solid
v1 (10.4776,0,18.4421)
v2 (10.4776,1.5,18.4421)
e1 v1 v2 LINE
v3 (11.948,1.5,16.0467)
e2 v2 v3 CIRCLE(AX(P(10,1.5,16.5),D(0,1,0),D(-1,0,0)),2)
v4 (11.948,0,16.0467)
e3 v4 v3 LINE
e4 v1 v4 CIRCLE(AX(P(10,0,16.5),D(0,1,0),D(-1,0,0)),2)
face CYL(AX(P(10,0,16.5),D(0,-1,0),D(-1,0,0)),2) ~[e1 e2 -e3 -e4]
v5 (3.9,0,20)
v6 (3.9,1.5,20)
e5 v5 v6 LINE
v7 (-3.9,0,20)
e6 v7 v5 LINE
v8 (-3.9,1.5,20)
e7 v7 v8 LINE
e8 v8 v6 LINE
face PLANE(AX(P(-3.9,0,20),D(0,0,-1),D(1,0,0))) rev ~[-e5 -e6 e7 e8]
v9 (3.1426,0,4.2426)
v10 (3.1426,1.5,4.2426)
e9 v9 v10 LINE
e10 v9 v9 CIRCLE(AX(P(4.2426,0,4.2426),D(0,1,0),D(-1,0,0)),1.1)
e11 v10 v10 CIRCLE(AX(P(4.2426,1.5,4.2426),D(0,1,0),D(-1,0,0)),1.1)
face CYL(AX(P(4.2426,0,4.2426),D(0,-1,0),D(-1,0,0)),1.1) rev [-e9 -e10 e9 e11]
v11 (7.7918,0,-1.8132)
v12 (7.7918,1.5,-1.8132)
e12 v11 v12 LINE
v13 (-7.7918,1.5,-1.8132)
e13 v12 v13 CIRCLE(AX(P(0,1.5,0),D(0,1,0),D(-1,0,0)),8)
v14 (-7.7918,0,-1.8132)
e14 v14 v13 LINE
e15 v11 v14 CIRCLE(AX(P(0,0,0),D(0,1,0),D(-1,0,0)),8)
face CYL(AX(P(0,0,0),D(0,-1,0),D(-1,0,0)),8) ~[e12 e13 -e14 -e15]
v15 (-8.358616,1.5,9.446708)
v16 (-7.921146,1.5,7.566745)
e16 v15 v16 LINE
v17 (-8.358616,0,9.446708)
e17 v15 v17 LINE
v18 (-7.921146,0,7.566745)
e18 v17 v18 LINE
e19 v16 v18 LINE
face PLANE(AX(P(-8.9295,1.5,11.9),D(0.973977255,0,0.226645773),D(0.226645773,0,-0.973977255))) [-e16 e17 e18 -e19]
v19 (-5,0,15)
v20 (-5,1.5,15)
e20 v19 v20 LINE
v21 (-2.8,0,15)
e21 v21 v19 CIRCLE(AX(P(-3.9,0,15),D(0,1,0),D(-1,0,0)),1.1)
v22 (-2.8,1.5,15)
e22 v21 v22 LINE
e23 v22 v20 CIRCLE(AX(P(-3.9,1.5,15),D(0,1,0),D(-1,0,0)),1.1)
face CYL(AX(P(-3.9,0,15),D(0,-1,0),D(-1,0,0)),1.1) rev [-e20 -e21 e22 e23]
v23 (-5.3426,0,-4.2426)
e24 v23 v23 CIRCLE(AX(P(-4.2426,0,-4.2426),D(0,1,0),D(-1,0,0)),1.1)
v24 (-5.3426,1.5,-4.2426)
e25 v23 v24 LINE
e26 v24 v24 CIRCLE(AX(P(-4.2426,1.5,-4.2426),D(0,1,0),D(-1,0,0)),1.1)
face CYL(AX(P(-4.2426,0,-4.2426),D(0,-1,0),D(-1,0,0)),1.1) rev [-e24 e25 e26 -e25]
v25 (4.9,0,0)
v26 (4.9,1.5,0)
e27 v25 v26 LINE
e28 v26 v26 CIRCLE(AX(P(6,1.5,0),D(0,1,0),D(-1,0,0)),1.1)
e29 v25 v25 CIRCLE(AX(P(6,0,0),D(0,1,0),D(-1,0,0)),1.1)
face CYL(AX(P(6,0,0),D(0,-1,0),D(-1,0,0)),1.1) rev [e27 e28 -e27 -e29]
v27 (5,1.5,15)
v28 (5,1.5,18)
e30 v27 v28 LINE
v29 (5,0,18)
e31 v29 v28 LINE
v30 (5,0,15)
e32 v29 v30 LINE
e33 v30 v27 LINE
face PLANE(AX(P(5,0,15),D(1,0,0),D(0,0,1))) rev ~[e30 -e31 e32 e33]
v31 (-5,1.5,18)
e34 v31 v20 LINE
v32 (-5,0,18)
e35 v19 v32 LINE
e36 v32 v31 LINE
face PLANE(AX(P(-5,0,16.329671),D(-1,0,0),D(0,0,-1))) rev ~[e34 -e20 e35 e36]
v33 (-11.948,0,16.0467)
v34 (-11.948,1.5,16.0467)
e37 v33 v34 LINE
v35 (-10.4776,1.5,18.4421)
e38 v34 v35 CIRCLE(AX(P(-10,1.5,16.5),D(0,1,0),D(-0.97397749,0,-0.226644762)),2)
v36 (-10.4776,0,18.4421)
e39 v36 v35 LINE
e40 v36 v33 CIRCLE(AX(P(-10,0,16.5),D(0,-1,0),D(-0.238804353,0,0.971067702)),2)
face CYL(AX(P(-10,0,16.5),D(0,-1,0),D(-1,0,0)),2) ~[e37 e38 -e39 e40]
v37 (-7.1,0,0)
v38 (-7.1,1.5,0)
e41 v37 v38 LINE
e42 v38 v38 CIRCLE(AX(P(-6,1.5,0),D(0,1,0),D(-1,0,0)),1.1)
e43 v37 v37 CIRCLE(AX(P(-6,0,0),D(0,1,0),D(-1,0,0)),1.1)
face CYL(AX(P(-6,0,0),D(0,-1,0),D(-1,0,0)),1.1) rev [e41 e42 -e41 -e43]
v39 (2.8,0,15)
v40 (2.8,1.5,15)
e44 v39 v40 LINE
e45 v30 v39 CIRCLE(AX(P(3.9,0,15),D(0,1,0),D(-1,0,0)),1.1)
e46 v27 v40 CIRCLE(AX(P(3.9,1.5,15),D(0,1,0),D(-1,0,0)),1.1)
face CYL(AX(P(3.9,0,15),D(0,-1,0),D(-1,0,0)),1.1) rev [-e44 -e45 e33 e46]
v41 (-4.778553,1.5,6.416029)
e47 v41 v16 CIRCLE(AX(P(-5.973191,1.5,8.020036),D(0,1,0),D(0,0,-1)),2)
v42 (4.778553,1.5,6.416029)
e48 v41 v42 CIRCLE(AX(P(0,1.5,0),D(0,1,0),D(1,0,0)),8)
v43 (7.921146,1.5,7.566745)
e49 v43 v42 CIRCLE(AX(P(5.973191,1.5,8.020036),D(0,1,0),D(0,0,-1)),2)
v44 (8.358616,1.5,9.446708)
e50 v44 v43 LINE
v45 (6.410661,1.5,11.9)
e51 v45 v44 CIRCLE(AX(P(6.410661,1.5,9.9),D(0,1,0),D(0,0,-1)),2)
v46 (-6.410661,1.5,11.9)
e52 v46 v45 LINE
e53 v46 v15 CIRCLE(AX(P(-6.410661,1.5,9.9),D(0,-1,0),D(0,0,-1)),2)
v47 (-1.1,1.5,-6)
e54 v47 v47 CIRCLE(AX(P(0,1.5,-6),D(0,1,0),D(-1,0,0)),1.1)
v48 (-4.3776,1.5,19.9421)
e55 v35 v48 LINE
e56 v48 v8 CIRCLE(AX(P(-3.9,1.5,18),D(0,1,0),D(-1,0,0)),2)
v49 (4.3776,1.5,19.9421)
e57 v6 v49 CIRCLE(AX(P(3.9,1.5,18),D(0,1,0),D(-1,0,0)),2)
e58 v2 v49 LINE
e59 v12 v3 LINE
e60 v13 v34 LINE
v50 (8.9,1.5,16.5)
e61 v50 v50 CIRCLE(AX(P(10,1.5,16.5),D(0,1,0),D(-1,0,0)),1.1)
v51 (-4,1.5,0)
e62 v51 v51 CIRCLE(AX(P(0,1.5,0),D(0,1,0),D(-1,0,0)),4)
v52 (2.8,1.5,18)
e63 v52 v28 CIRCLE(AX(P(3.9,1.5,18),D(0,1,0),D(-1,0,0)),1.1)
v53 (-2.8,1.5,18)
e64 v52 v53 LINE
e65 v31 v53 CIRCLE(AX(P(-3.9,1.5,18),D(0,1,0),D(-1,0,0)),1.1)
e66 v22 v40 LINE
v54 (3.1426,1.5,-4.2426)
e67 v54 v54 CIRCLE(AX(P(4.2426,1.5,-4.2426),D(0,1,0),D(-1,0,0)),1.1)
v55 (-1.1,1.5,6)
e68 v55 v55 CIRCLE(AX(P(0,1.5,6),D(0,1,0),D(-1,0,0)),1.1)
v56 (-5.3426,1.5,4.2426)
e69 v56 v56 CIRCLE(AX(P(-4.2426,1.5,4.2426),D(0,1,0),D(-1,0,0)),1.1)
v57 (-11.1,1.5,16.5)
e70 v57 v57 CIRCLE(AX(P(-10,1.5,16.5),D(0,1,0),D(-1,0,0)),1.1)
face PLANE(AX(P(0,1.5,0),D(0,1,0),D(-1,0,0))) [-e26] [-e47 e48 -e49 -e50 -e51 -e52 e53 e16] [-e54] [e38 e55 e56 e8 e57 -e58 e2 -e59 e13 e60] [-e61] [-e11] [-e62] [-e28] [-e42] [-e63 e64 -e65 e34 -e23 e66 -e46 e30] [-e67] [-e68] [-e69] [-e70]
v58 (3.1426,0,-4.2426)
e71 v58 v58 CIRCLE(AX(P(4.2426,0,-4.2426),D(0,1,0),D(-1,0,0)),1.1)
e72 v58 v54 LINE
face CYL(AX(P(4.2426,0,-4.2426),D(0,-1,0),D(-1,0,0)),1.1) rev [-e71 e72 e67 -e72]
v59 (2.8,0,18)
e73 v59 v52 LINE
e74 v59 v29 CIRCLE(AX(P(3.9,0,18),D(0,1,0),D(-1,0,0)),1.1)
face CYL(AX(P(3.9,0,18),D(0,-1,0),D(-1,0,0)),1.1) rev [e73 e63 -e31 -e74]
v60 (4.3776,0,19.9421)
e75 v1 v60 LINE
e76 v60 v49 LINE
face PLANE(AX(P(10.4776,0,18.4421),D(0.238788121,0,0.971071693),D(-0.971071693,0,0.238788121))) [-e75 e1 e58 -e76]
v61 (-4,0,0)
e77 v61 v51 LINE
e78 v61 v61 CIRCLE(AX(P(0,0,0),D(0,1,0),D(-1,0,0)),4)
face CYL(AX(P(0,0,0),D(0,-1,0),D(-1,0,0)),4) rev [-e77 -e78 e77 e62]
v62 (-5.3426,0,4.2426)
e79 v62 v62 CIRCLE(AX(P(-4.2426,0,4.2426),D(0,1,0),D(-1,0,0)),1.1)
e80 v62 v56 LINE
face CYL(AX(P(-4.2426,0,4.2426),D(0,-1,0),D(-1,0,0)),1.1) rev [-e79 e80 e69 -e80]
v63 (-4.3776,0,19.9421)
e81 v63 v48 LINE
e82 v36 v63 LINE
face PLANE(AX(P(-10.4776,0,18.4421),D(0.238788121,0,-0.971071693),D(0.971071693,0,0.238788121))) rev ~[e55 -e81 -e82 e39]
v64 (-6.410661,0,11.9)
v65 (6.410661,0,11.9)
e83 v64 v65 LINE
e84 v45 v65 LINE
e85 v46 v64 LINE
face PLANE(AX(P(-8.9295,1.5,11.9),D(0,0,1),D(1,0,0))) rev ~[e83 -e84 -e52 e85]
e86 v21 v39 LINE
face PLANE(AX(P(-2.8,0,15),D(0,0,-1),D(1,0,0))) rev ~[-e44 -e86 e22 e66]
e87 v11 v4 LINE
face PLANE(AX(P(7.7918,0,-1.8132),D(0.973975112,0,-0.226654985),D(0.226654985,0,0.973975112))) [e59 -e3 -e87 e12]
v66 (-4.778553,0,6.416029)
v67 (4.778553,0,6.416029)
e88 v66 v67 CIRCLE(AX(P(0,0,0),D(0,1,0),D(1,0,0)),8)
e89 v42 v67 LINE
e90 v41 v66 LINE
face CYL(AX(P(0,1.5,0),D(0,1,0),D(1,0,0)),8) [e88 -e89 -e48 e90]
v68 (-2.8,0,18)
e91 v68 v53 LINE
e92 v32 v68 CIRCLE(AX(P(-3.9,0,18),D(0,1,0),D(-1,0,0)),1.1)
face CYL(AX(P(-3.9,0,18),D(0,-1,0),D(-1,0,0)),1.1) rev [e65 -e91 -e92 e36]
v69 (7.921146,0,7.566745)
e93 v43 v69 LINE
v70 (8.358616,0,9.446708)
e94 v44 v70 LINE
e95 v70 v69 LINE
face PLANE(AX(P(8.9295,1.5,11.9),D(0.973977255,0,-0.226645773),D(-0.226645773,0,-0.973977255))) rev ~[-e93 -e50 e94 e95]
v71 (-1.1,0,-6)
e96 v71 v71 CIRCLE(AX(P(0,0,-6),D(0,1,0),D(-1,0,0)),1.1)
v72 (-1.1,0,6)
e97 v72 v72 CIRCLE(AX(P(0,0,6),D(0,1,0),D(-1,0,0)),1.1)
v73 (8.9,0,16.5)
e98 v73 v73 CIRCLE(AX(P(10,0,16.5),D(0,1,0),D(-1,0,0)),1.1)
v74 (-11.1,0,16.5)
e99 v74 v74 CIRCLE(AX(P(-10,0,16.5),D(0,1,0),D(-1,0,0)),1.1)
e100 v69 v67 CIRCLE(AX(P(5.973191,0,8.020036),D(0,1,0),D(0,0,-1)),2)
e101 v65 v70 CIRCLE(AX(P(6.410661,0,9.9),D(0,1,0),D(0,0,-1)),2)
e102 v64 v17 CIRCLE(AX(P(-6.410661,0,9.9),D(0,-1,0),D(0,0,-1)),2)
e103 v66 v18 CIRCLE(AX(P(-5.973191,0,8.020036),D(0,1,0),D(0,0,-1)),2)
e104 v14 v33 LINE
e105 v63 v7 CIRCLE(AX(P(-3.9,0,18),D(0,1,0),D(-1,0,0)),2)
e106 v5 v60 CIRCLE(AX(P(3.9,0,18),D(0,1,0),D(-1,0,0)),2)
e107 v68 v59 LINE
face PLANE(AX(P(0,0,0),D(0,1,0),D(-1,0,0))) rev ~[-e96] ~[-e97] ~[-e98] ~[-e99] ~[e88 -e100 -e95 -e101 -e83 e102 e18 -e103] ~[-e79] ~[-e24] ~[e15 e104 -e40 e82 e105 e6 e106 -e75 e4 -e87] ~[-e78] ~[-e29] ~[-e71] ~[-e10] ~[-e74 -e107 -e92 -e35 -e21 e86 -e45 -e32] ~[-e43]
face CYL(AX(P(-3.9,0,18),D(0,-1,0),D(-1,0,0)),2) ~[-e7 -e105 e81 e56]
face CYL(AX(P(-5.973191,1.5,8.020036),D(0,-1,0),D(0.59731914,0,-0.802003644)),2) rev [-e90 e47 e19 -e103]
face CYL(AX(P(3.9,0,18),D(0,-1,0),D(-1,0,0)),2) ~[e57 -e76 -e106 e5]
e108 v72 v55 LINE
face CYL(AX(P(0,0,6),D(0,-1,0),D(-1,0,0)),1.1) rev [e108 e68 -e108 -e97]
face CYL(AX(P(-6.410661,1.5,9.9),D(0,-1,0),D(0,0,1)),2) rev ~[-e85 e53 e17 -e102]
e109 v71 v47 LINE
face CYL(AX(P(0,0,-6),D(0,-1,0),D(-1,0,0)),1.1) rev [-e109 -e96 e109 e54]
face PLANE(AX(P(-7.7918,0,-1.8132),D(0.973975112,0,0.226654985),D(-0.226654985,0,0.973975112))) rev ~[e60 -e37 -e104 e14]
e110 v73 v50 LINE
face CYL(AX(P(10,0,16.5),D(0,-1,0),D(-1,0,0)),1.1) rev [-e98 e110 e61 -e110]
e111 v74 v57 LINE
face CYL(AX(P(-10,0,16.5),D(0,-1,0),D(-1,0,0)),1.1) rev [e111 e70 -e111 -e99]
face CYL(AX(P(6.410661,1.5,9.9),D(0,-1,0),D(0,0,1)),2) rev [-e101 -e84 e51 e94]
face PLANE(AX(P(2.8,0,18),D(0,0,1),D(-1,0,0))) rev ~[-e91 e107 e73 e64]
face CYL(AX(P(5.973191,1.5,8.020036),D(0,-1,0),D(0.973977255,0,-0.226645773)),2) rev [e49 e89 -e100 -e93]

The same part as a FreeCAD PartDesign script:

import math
import FreeCAD as App
import Part
import Sketcher

V = App.Vector
Q = App.Units.Quantity


def edges_at(feature, points):
    """Names of the edges that pass closest to the given points."""
    edges = feature.Shape.Edges
    near = lambda p: min(range(len(edges)), key=lambda i: edges[i].distToShape(Part.Vertex(*p))[0])
    return sorted({f"Edge{near(p) + 1}" for p in points})

doc = App.newDocument("Part")
params = doc.addObject("Spreadsheet::Sheet", "Params")
for row, (alias, value) in enumerate([
    ("sketch1_diameter", "8 mm"),
    ("sketch1_radius", "8 mm"),
    ("sketch1_radius2", "2 mm"),
    ("sketch1_diameter2", "2.2 mm"),
    ("sketch1_height", "3 mm"),
    ("pad1_length", "1.5 mm"),
    ("sketch2_radius", "8 mm"),
    ("fillet_radius", "2 mm"),
], start=1):
    params.set(f"A{row}", alias)
    params.set(f"B{row}", "=" + value)
    params.setAlias(f"B{row}", alias)

body = doc.addObject("PartDesign::Body", "Body")

# Sketch on XZ plane
sketch1 = doc.addObject("Sketcher::SketchObject", "Sketch")
body.addObject(sketch1)
sketch1.AttachmentSupport = (doc.XZ_Plane, [""])
sketch1.MapMode = "FlatFace"
sketch1.addGeometry([
    Part.ArcOfCircle(Part.Circle(V(0, 0, 0), V(0, 0, 1), 8), math.radians(-167), math.radians(-13)),  # 0
    Part.LineSegment(V(-7.79, -1.81, 0), V(-11.95, 16.05, 0)),  # 1
    Part.ArcOfCircle(Part.Circle(V(-10, 16.5, 0), V(0, 0, 1), 2), math.radians(104), math.radians(193)),  # 2
    Part.LineSegment(V(-10.48, 18.44, 0), V(-4.38, 19.94, 0)),  # 3
    Part.ArcOfCircle(Part.Circle(V(-3.9, 18, 0), V(0, 0, 1), 2), math.radians(90), math.radians(103.82)),  # 4
    Part.LineSegment(V(-3.9, 20, 0), V(3.9, 20, 0)),  # 5
    Part.ArcOfCircle(Part.Circle(V(3.9, 18, 0), V(0, 0, 1), 2), math.radians(76.18), math.radians(90)),  # 6
    Part.LineSegment(V(4.38, 19.94, 0), V(10.48, 18.44, 0)),  # 7
    Part.ArcOfCircle(Part.Circle(V(10, 16.5, 0), V(0, 0, 1), 2), math.radians(-13), math.radians(76)),  # 8
    Part.LineSegment(V(11.95, 16.05, 0), V(7.79, -1.81, 0)),  # 9
    Part.Circle(V(4.24, -4.24, 0), V(0, 0, 1), 1.1),  # 10
    Part.Circle(V(6, 0, 0), V(0, 0, 1), 1.1),  # 11
    Part.Circle(V(4.24, 4.24, 0), V(0, 0, 1), 1.1),  # 12
    Part.Circle(V(0, -6, 0), V(0, 0, 1), 1.1),  # 13
    Part.Circle(V(-4.24, -4.24, 0), V(0, 0, 1), 1.1),  # 14
    Part.Circle(V(0, 0, 0), V(0, 0, 1), 4),  # 15
    Part.Circle(V(-4.24, 4.24, 0), V(0, 0, 1), 1.1),  # 16
    Part.Circle(V(-6, 0, 0), V(0, 0, 1), 1.1),  # 17
    Part.Circle(V(0, 6, 0), V(0, 0, 1), 1.1),  # 18
    Part.LineSegment(V(5, 15, 0), V(5, 18, 0)),  # 19
    Part.ArcOfCircle(Part.Circle(V(3.9, 18, 0), V(0, 0, 1), 1.1), math.radians(0), math.radians(180)),  # 20
    Part.LineSegment(V(2.8, 18, 0), V(-2.8, 18, 0)),  # 21
    Part.ArcOfCircle(Part.Circle(V(-3.9, 18, 0), V(0, 0, 1), 1.1), math.radians(0), math.radians(180)),  # 22
    Part.LineSegment(V(-5, 18, 0), V(-5, 15, 0)),  # 23
    Part.ArcOfCircle(Part.Circle(V(-3.9, 15, 0), V(0, 0, 1), 1.1), math.radians(180), math.radians(360)),  # 24
    Part.LineSegment(V(-2.8, 15, 0), V(2.8, 15, 0)),  # 25
    Part.ArcOfCircle(Part.Circle(V(3.9, 15, 0), V(0, 0, 1), 1.1), math.radians(180), math.radians(360)),  # 26
    Part.Circle(V(10, 16.5, 0), V(0, 0, 1), 1.1),  # 27
    Part.Circle(V(-10, 16.5, 0), V(0, 0, 1), 1.1),  # 28
], False)
sketch1.addConstraint([
    Sketcher.Constraint("Tangent", 0, 1, 1, 1),
    Sketcher.Constraint("Tangent", 1, 2, 2, 2),
    Sketcher.Constraint("Tangent", 2, 1, 3, 1),
    Sketcher.Constraint("Tangent", 3, 2, 4, 2),
    Sketcher.Constraint("Tangent", 4, 1, 5, 1),
    Sketcher.Constraint("Tangent", 5, 2, 6, 2),
    Sketcher.Constraint("Tangent", 6, 1, 7, 1),
    Sketcher.Constraint("Tangent", 7, 2, 8, 2),
    Sketcher.Constraint("Tangent", 8, 1, 9, 1),
    Sketcher.Constraint("Tangent", 9, 2, 0, 2),
    Sketcher.Constraint("Tangent", 19, 2, 20, 1),
    Sketcher.Constraint("Coincident", 20, 2, 21, 1),
    Sketcher.Constraint("Coincident", 21, 2, 22, 1),
    Sketcher.Constraint("Tangent", 22, 2, 23, 1),
    Sketcher.Constraint("Tangent", 23, 2, 24, 1),
    Sketcher.Constraint("Coincident", 24, 2, 25, 1),
    Sketcher.Constraint("Coincident", 25, 2, 26, 1),
    Sketcher.Constraint("Tangent", 26, 2, 19, 1),
    Sketcher.Constraint("Horizontal", 5),
    Sketcher.Constraint("Vertical", 19),
    Sketcher.Constraint("Horizontal", 21),
    Sketcher.Constraint("Vertical", 23),
    Sketcher.Constraint("Horizontal", 25),
    Sketcher.Constraint("Coincident", 0, 3, -1, 1),
    Sketcher.Constraint("Coincident", 15, 3, -1, 1),
    Sketcher.Constraint("Coincident", 20, 3, 6, 3),
    Sketcher.Constraint("Coincident", 22, 3, 4, 3),
    Sketcher.Constraint("Coincident", 27, 3, 8, 3),
    Sketcher.Constraint("Coincident", 28, 3, 2, 3),
    Sketcher.Constraint("Equal", 2, 4),
    Sketcher.Constraint("Equal", 4, 6),
    Sketcher.Constraint("Equal", 6, 8),
    Sketcher.Constraint("Equal", 10, 11),
    Sketcher.Constraint("Equal", 11, 12),
    Sketcher.Constraint("Equal", 12, 13),
    Sketcher.Constraint("Equal", 13, 14),
    Sketcher.Constraint("Equal", 14, 16),
    Sketcher.Constraint("Equal", 16, 17),
    Sketcher.Constraint("Equal", 17, 18),
    Sketcher.Constraint("Equal", 18, 20),
    Sketcher.Constraint("Equal", 20, 22),
    Sketcher.Constraint("Equal", 22, 24),
    Sketcher.Constraint("Equal", 24, 26),
    Sketcher.Constraint("Equal", 26, 27),
    Sketcher.Constraint("Equal", 27, 28),
    Sketcher.Constraint("Symmetric", 12, 3, 14, 3, -1, 1),
    Sketcher.Constraint("Symmetric", 10, 3, 16, 3, -1, 1),
    Sketcher.Constraint("Symmetric", 11, 3, 17, 3, -1, 1),
    Sketcher.Constraint("Symmetric", 13, 3, 18, 3, -1, 1),
    Sketcher.Constraint("Symmetric", 2, 3, 8, 3, -2),
    Sketcher.Constraint("Symmetric", 10, 3, 14, 3, -2),
    Sketcher.Constraint("Symmetric", 24, 3, 26, 3, -2),
    Sketcher.Constraint("PointOnObject", 11, 3, -1),
    Sketcher.Constraint("PointOnObject", 13, 3, -2),
    Sketcher.Constraint("Horizontal", 19, 2, 20, 2),
    Sketcher.Constraint("Horizontal", 23, 2, 24, 2),
    Sketcher.Constraint("Diameter", 15, Q("8 mm")),
    Sketcher.Constraint("Radius", 0, Q("8 mm")),
    Sketcher.Constraint("Radius", 2, Q("2 mm")),
    Sketcher.Constraint("Diameter", 10, Q("2.2 mm")),
    Sketcher.Constraint("DistanceY", 19, 1, 19, 2, Q("3 mm")),
    Sketcher.Constraint("DistanceX", 2, 3, -1, 1, Q("10 mm")),
    Sketcher.Constraint("DistanceY", -1, 1, 24, 3, Q("15 mm")),
    Sketcher.Constraint("DistanceX", -1, 1, 19, 2, Q("5 mm")),
    Sketcher.Constraint("DistanceX", 11, 3, 8, 3, Q("4 mm")),
    Sketcher.Constraint("DistanceY", 18, 3, 20, 3, Q("12 mm")),
    Sketcher.Constraint("Angle", 1, Q("103.1002 deg")),
    Sketcher.Constraint("DistanceX", -1, 1, 10, 3, Q("4.2426 mm")),
    Sketcher.Constraint("DistanceY", 10, 3, -1, 1, Q("4.2426 mm")),
])
sketch1.setExpression("Constraints[56]", "Params.sketch1_diameter")
sketch1.setExpression("Constraints[57]", "Params.sketch1_radius")
sketch1.setExpression("Constraints[58]", "Params.sketch1_radius2")
sketch1.setExpression("Constraints[59]", "Params.sketch1_diameter2")
sketch1.setExpression("Constraints[60]", "Params.sketch1_height")
pad1 = doc.addObject("PartDesign::Pad", "Pad")
body.addObject(pad1)
pad1.Profile = sketch1
pad1.setExpression("Length", "Params.pad1_length")
pad1.Reversed = True

# Sketch on XZ plane
sketch2 = doc.addObject("Sketcher::SketchObject", "Sketch001")
body.addObject(sketch2)
sketch2.AttachmentSupport = (doc.XZ_Plane, [""])
sketch2.MapMode = "FlatFace"
sketch2.AttachmentOffset = App.Placement(V(0, 0, -1.5), App.Rotation())
sketch2.addGeometry([
    Part.LineSegment(V(-7, 4, 0), V(-9, 12, 0)),
    Part.LineSegment(V(-9, 12, 0), V(9, 12, 0)),
    Part.LineSegment(V(9, 12, 0), V(7, 4, 0)),
    Part.ArcOfCircle(Part.Circle(V(0, 0, 0), V(0, 0, 1), 8), math.radians(28), math.radians(152)),
], False)
sketch2.addConstraint([
    Sketcher.Constraint("Coincident", 0, 2, 1, 1),
    Sketcher.Constraint("Coincident", 1, 2, 2, 1),
    Sketcher.Constraint("Coincident", 2, 2, 3, 1),
    Sketcher.Constraint("Coincident", 3, 2, 0, 1),
    Sketcher.Constraint("Horizontal", 1),
    Sketcher.Constraint("Coincident", 3, 3, -1, 1),
    Sketcher.Constraint("Horizontal", 2, 2, 3, 2),
    Sketcher.Constraint("Equal", 0, 2),
    Sketcher.Constraint("Radius", 3, Q("8 mm")),
    Sketcher.Constraint("Angle", 0, Q("103.0997 deg")),
    Sketcher.Constraint("DistanceY", -1, 1, 0, 2, Q("11.9 mm")),
    Sketcher.Constraint("DistanceX", 1, 1, 1, 2, Q("17.859 mm")),
])
sketch2.setExpression("Constraints[8]", "Params.sketch2_radius")
pocket1 = doc.addObject("PartDesign::Pocket", "Pocket")
body.addObject(pocket1)
pocket1.Profile = sketch2
pocket1.Type = "ThroughAll"
pocket1.Reversed = True
doc.recompute()

fillet = doc.addObject("PartDesign::Fillet", "Fillet")
body.addObject(fillet)
fillet.Base = (pocket1, edges_at(pocket1, [
    (-7.043, 0.75, 3.794),
    (7.043, 0.75, 3.794),
    (8.93, 0.75, 11.9),
    (-8.93, 0.75, 11.9),
]))
fillet.setExpression("Radius", "Params.fillet_radius")

doc.recompute()
